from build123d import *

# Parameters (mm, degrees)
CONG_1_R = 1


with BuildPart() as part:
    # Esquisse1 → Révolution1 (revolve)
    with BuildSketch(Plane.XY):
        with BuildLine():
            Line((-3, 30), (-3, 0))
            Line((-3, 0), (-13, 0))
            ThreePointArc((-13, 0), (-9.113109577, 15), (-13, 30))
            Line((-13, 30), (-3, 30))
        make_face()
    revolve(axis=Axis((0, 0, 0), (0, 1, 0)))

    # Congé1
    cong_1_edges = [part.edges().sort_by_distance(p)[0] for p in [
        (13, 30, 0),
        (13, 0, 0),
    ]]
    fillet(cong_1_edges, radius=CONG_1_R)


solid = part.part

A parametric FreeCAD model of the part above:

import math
import FreeCAD as App
import Part
import Sketcher

V = App.Vector


def edges_at(feature, points):
    """Names of the edges that pass closest to the given points."""
    edges = feature.Shape.Edges
    near = lambda p: min(range(len(edges)), key=lambda i: edges[i].distToShape(Part.Vertex(*p))[0])
    return sorted({f"Edge{near(p) + 1}" for p in points})

doc = App.newDocument("Part")
body = doc.addObject("PartDesign::Body", "Body")

sketch1 = doc.addObject("Sketcher::SketchObject", "Sketch")
body.addObject(sketch1)
sketch1.AttachmentSupport = (doc.XY_Plane, [""])
sketch1.MapMode = "FlatFace"
sketch1.addGeometry(Part.LineSegment(V(-3, 0, 0), V(-3, 30, 0)), False)
sketch1.addGeometry(Part.LineSegment(V(-3, 30, 0), V(-13, 30, 0)), False)
sketch1.addGeometry(Part.ArcOfCircle(Part.Circle(V(-40, 15, 0), V(0, 0, 1), 31), math.radians(-29), math.radians(29)), False)
sketch1.addGeometry(Part.LineSegment(V(-13, 0, 0), V(-3, 0, 0)), False)
sketch1.addConstraint(Sketcher.Constraint("Coincident", 0, 2, 1, 1))
sketch1.addConstraint(Sketcher.Constraint("Coincident", 1, 2, 2, 2))
sketch1.addConstraint(Sketcher.Constraint("Coincident", 2, 1, 3, 1))
sketch1.addConstraint(Sketcher.Constraint("Coincident", 3, 2, 0, 1))
sketch1.addConstraint(Sketcher.Constraint("Vertical", 0))
sketch1.addConstraint(Sketcher.Constraint("Horizontal", 1))
sketch1.addConstraint(Sketcher.Constraint("Horizontal", 3))
sketch1.addConstraint(Sketcher.Constraint("PointOnObject", 2, 1, -1))
sketch1.addConstraint(Sketcher.Constraint("Vertical", 1, 2, 2, 1))
sketch1.addConstraint(Sketcher.Constraint("DistanceX", 1, 2, 1, 1, 10.0))
sketch1.addConstraint(Sketcher.Constraint("DistanceY", 0, 1, 0, 2, 30.0))
sketch1.addConstraint(Sketcher.Constraint("DistanceX", 2, 3, -1, 1, 40.0))
sketch1.addConstraint(Sketcher.Constraint("DistanceX", 0, 2, -1, 1, 3.0))
revolution = doc.addObject("PartDesign::Revolution", "Revolution")
body.addObject(revolution)
revolution.Profile = sketch1
revolution.ReferenceAxis = (sketch1, ["V_Axis"])
revolution.Angle = 360
doc.recompute()

fillet = doc.addObject("PartDesign::Fillet", "Fillet")
body.addObject(fillet)
fillet.Base = (revolution, edges_at(revolution, [(13, 30, 0), (13, 0, 0)]))
fillet.Radius = 1

doc.recompute()
